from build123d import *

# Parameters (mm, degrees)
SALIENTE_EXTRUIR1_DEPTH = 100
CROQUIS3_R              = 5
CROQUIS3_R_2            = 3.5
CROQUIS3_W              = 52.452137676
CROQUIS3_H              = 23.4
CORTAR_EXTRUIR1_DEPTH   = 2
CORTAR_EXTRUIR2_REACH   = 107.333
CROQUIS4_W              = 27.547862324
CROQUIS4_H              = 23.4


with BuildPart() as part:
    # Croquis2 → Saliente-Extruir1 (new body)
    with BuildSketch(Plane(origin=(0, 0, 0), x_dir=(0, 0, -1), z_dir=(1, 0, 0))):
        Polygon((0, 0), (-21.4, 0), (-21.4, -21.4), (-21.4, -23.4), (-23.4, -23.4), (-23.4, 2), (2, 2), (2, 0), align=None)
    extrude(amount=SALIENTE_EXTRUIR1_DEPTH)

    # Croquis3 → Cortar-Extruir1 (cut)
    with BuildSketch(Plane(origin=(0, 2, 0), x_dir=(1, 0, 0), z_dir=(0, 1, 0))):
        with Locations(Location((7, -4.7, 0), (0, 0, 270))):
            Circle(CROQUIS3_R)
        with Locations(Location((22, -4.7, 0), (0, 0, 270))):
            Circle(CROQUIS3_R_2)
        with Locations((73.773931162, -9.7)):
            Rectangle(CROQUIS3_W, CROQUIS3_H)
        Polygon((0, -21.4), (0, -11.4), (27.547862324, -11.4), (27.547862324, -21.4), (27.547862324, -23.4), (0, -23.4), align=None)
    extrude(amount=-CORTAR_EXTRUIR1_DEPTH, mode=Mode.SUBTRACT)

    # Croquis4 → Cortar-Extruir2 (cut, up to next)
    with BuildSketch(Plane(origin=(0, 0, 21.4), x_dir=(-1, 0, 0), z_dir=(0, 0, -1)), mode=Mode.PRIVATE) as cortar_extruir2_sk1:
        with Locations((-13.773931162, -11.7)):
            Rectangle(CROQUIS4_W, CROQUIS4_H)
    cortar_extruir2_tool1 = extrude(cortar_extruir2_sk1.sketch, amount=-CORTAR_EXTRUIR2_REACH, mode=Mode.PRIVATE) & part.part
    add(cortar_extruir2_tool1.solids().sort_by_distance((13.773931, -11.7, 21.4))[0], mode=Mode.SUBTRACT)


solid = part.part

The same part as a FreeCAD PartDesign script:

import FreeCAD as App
import Part
import Sketcher
from FreeCAD import Vector
Q = App.Units.Quantity

doc = App.newDocument("Part")
body = doc.addObject("PartDesign::Body", "Body")

sketch1 = body.newObject("Sketcher::SketchObject", "Sketch")
sketch1.AttachmentSupport = (doc.getObject("YZ_Plane"), [""])
sketch1.MapMode = "FlatFace"
sketch1.addGeometry([
    Part.LineSegment(Vector(0, 21.4, 0), Vector(0, -2, 0)),
    Part.LineSegment(Vector(0, -2, 0), Vector(2, -2, 0)),
    Part.LineSegment(Vector(2, -2, 0), Vector(2, 23.4, 0)),
    Part.LineSegment(Vector(2, 23.4, 0), Vector(-23.4, 23.4, 0)),
    Part.LineSegment(Vector(-23.4, 23.4, 0), Vector(-23.4, 21.4, 0)),
    Part.LineSegment(Vector(-23.4, 21.4, 0), Vector(0, 21.4, 0)),
], False)
sketch1.addConstraint([
    Sketcher.Constraint("Coincident", 0, 2, 1, 1),
    Sketcher.Constraint("Coincident", 1, 2, 2, 1),
    Sketcher.Constraint("Coincident", 2, 2, 3, 1),
    Sketcher.Constraint("Coincident", 3, 2, 4, 1),
    Sketcher.Constraint("Coincident", 4, 2, 5, 1),
    Sketcher.Constraint("Coincident", 5, 2, 0, 1),
    Sketcher.Constraint("Vertical", 0),
    Sketcher.Constraint("Horizontal", 1),
    Sketcher.Constraint("Vertical", 2),
    Sketcher.Constraint("Horizontal", 3),
    Sketcher.Constraint("Vertical", 4),
    Sketcher.Constraint("Horizontal", 5),
    Sketcher.Constraint("PointOnObject", 0, 2, -2),
    Sketcher.Constraint("Equal", 5, 0),
    Sketcher.Constraint("Equal", 3, 2),
    Sketcher.Constraint("DistanceX", 1, 1, 1, 2, Q("2 mm")),
    Sketcher.Constraint("DistanceX", 3, 2, 3, 1, Q("25.4 mm")),
    Sketcher.Constraint("DistanceY", 0, 2, -1, 1, Q("2 mm")),
])
pad1 = body.newObject("PartDesign::Pad", "Pad")
pad1.Profile = sketch1
pad1.Length = 100

sketch2 = body.newObject("Sketcher::SketchObject", "Sketch001")
sketch2.AttachmentSupport = (doc.getObject("XZ_Plane"), [""])
sketch2.MapMode = "FlatFace"
sketch2.AttachmentOffset = App.Placement(Vector(0, 0, -2), App.Rotation())
sketch2.addGeometry([
    Part.Circle(Vector(7, 4.7, 0), Vector(0, 0, 1), 5),
    Part.Circle(Vector(22, 4.7, 0), Vector(0, 0, 1), 3.5),
    Part.LineSegment(Vector(47.5, -2, 0), Vector(47.5, 21.4, 0)),
    Part.LineSegment(Vector(47.5, 21.4, 0), Vector(100, 21.4, 0)),
    Part.LineSegment(Vector(100, 21.4, 0), Vector(100, -2, 0)),
    Part.LineSegment(Vector(100, -2, 0), Vector(47.5, -2, 0)),
    Part.LineSegment(Vector(0, 11.4, 0), Vector(0, 23.4, 0)),
    Part.LineSegment(Vector(0, 23.4, 0), Vector(27.5, 23.4, 0)),
    Part.LineSegment(Vector(27.5, 23.4, 0), Vector(27.5, 11.4, 0)),
    Part.LineSegment(Vector(27.5, 11.4, 0), Vector(0, 11.4, 0)),
], False)
sketch2.addConstraint([
    Sketcher.Constraint("Coincident", 2, 2, 3, 1),
    Sketcher.Constraint("Coincident", 3, 2, 4, 1),
    Sketcher.Constraint("Coincident", 4, 2, 5, 1),
    Sketcher.Constraint("Coincident", 5, 2, 2, 1),
    Sketcher.Constraint("Coincident", 6, 2, 7, 1),
    Sketcher.Constraint("Coincident", 7, 2, 8, 1),
    Sketcher.Constraint("Coincident", 8, 2, 9, 1),
    Sketcher.Constraint("Coincident", 9, 2, 6, 1),
    Sketcher.Constraint("Vertical", 2),
    Sketcher.Constraint("Horizontal", 3),
    Sketcher.Constraint("Vertical", 4),
    Sketcher.Constraint("Horizontal", 5),
    Sketcher.Constraint("Vertical", 6),
    Sketcher.Constraint("Horizontal", 7),
    Sketcher.Constraint("Vertical", 8),
    Sketcher.Constraint("Horizontal", 9),
    Sketcher.Constraint("PointOnObject", 6, 2, -2),
    Sketcher.Constraint("Horizontal", 0, 3, 1, 3),
    Sketcher.Constraint("Diameter", 0, Q("10 mm")),
    Sketcher.Constraint("Diameter", 1, Q("7 mm")),
    Sketcher.Constraint("DistanceY", 6, 1, 6, 2, Q("12 mm")),
    Sketcher.Constraint("DistanceY", 2, 1, 2, 2, Q("23.4 mm")),
    Sketcher.Constraint("DistanceX", -1, 1, 0, 3, Q("7 mm")),
    Sketcher.Constraint("DistanceX", -1, 1, 1, 3, Q("22 mm")),
    Sketcher.Constraint("DistanceX", -1, 1, 3, 2, Q("100 mm")),
    Sketcher.Constraint("DistanceY", 4, 2, -1, 1, Q("2 mm")),
    Sketcher.Constraint("DistanceY", 2, 2, 6, 2, Q("2 mm")),
    Sketcher.Constraint("DistanceX", 7, 2, 2, 2, Q("20 mm")),
    Sketcher.Constraint("DistanceY", -1, 1, 0, 3, Q("4.7 mm")),
    Sketcher.Constraint("DistanceX", 3, 1, 3, 2, Q("52.452138 mm")),
])
pocket1 = body.newObject("PartDesign::Pocket", "Pocket")
pocket1.Profile = sketch2
pocket1.Length = 2
pocket1.Reversed = True

sketch3 = body.newObject("Sketcher::SketchObject", "Sketch002")
sketch3.AttachmentSupport = (doc.getObject("XY_Plane"), [""])
sketch3.MapMode = "FlatFace"
sketch3.AttachmentOffset = App.Placement(Vector(0, 0, 21.4), App.Rotation())
sketch3.addGeometry([
    Part.LineSegment(Vector(28, 0, 0), Vector(28, -23, 0)),
    Part.LineSegment(Vector(28, -23, 0), Vector(0, -23, 0)),
    Part.LineSegment(Vector(0, -23, 0), Vector(0, 0, 0)),
    Part.LineSegment(Vector(0, 0, 0), Vector(28, 0, 0)),
], False)
sketch3.addConstraint([
    Sketcher.Constraint("Coincident", 0, 2, 1, 1),
    Sketcher.Constraint("Coincident", 1, 2, 2, 1),
    Sketcher.Constraint("Coincident", 2, 2, 3, 1),
    Sketcher.Constraint("Coincident", 3, 2, 0, 1),
    Sketcher.Constraint("Vertical", 0),
    Sketcher.Constraint("Horizontal", 1),
    Sketcher.Constraint("Vertical", 2),
    Sketcher.Constraint("Horizontal", 3),
    Sketcher.Constraint("Coincident", 2, 2, -1, 1),
    Sketcher.Constraint("DistanceY", 0, 2, 0, 1, Q("23.4 mm")),
    Sketcher.Constraint("DistanceX", 1, 2, 1, 1, Q("27.547862 mm")),
])
pocket2 = body.newObject("PartDesign::Pocket", "Pocket001")
pocket2.Profile = sketch3
pocket2.Type = "UpToFirst"
pocket2.Reversed = True

doc.recompute()
